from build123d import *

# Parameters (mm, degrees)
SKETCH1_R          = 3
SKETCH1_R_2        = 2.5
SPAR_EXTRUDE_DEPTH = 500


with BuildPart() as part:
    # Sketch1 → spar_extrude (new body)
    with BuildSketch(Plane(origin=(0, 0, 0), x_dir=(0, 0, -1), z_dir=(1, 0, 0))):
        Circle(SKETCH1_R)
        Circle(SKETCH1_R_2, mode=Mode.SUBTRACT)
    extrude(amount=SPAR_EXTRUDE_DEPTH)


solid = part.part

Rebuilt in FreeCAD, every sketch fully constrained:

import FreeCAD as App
import Part
import Sketcher
from FreeCAD import Vector
Q = App.Units.Quantity

doc = App.newDocument("Part")
params = doc.addObject("Spreadsheet::Sheet", "Params")
for row, (alias, value) in enumerate([
    ("sketch1_diameter", "6 mm"),
    ("sketch1_diameter2", "5 mm"),
    ("pad1_length", "500 mm"),
], start=1):
    params.set(f"A{row}", alias)
    params.set(f"B{row}", "=" + value)
    params.setAlias(f"B{row}", alias)

body = doc.addObject("PartDesign::Body", "Body")

# Sketch on YZ plane
sketch1 = body.newObject("Sketcher::SketchObject", "Sketch")
sketch1.AttachmentSupport = (doc.getObject("YZ_Plane"), [""])
sketch1.MapMode = "FlatFace"
sketch1.addGeometry([
    Part.Circle(Vector(0, 0, 0), Vector(0, 0, 1), 3),
    Part.Circle(Vector(0, 0, 0), Vector(0, 0, 1), 2.5),
], False)
sketch1.addConstraint([
    Sketcher.Constraint("Coincident", 0, 3, -1, 1),
    Sketcher.Constraint("Coincident", 1, 3, -1, 1),
    Sketcher.Constraint("Diameter", 0, Q("6 mm")),
    Sketcher.Constraint("Diameter", 1, Q("5 mm")),
])
sketch1.setExpression("Constraints[2]", "Params.sketch1_diameter")
sketch1.setExpression("Constraints[3]", "Params.sketch1_diameter2")
pad1 = body.newObject("PartDesign::Pad", "Pad")
pad1.Profile = sketch1
pad1.setExpression("Length", "Params.pad1_length")

doc.recompute()
